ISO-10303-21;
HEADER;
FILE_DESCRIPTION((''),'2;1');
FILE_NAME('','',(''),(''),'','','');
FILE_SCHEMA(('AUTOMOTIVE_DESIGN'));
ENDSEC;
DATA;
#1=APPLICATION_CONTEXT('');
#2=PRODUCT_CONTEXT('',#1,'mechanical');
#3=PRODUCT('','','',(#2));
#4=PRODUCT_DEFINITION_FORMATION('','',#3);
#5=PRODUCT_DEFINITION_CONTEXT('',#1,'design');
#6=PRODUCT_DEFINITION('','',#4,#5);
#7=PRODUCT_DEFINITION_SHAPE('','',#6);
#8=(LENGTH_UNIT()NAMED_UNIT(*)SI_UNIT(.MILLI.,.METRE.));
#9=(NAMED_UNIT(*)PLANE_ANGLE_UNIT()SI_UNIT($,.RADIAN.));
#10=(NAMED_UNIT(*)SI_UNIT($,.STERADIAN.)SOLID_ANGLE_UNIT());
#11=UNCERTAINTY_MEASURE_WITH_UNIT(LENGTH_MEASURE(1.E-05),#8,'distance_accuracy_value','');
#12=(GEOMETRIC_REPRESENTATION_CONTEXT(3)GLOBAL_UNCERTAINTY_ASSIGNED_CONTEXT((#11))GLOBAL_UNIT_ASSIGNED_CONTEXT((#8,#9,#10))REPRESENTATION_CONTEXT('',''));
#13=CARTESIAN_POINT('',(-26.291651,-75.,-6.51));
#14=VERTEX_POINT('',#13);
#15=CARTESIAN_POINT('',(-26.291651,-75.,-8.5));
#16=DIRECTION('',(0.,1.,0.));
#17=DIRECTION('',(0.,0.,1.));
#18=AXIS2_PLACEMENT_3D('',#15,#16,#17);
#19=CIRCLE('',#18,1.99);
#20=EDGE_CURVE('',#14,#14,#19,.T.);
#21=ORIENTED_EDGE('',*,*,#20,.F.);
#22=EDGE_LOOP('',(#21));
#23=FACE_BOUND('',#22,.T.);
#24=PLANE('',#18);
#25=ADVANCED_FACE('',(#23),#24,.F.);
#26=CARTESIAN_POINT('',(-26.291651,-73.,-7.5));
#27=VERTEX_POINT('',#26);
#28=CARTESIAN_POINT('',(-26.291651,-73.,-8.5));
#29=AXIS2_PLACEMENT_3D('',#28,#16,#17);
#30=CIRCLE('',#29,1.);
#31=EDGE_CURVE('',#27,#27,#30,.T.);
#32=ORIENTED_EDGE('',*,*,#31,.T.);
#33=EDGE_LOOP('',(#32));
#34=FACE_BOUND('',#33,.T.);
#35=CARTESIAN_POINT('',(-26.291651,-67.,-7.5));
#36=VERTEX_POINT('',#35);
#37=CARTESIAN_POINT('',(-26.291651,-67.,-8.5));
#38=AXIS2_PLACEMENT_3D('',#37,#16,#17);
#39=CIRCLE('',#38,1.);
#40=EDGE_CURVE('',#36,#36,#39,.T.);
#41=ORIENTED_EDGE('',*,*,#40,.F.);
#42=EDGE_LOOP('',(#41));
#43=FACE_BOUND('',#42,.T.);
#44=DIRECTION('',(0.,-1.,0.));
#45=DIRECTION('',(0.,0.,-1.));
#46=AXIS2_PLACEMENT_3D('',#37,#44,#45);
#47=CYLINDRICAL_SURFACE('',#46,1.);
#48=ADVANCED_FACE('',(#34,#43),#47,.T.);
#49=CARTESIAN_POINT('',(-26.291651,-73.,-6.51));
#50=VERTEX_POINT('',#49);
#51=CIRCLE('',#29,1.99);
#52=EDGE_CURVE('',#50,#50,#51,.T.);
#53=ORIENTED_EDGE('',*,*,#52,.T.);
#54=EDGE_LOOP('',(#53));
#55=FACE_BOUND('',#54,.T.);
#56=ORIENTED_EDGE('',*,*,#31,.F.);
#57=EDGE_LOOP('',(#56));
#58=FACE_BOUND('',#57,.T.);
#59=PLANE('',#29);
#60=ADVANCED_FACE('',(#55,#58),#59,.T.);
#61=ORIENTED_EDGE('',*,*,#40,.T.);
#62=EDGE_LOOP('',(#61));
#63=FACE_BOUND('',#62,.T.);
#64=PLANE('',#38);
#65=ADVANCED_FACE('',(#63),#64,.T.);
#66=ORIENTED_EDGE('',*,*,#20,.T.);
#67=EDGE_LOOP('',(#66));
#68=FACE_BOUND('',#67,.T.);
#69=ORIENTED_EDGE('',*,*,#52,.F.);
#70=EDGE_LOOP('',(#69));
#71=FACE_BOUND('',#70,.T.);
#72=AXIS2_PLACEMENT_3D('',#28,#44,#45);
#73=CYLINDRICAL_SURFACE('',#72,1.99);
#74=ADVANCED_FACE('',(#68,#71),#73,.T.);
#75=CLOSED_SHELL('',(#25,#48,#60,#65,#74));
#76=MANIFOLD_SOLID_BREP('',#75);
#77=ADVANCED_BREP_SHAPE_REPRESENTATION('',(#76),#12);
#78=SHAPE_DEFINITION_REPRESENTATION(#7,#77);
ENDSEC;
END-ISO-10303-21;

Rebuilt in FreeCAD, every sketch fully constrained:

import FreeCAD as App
import Part
import Sketcher
from FreeCAD import Vector

doc = App.newDocument("Part")
params = doc.addObject("Spreadsheet::Sheet", "Params")
for row, (alias, value) in enumerate([
    ("sketch1_diameter", "2 mm"),
    ("pad1_length", "6 mm"),
    ("sketch2_diameter", "3.98 mm"),
    ("pad2_length", "2 mm"),
], start=1):
    params.set(f"A{row}", alias)
    params.set(f"B{row}", "=" + value)
    params.setAlias(f"B{row}", alias)

body = doc.addObject("PartDesign::Body", "Body")

sketch1 = body.newObject("Sketcher::SketchObject", "Sketch")
sketch1.AttachmentSupport = (doc.getObject("XZ_Plane"), [""])
sketch1.MapMode = "FlatFace"
sketch1.AttachmentOffset = App.Placement(Vector(0, 0, 73), App.Rotation())
sketch1.addGeometry(Part.Circle(Vector(-26.291651, -8.5, 0), Vector(0, 0, 1), 1), False)
sketch1.addConstraint([
    Sketcher.Constraint("Diameter", 0, 2.0),
    Sketcher.Constraint("DistanceY", 0, 3, -1, 1, 8.5),
    Sketcher.Constraint("DistanceX", 0, 3, -1, 1, 26.291651),
])
sketch1.setExpression("Constraints[0]", "Params.sketch1_diameter")
pad1 = body.newObject("PartDesign::Pad", "Pad")
pad1.Profile = sketch1
pad1.setExpression("Length", "Params.pad1_length")
pad1.Reversed = True

sketch2 = body.newObject("Sketcher::SketchObject", "Sketch001")
sketch2.AttachmentSupport = (doc.getObject("XZ_Plane"), [""])
sketch2.MapMode = "FlatFace"
sketch2.AttachmentOffset = App.Placement(Vector(0, 0, 75), App.Rotation())
sketch2.addGeometry(Part.Circle(Vector(-26.291651, -8.5, 0), Vector(0, 0, 1), 1.99), False)
sketch2.addConstraint([
    Sketcher.Constraint("Diameter", 0, 3.98),
    Sketcher.Constraint("DistanceY", 0, 3, -1, 1, 8.5),
    Sketcher.Constraint("DistanceX", 0, 3, -1, 1, 26.291651),
])
sketch2.setExpression("Constraints[0]", "Params.sketch2_diameter")
pad2 = body.newObject("PartDesign::Pad", "Pad001")
pad2.Profile = sketch2
pad2.setExpression("Length", "Params.pad2_length")
pad2.Reversed = True

doc.recompute()
